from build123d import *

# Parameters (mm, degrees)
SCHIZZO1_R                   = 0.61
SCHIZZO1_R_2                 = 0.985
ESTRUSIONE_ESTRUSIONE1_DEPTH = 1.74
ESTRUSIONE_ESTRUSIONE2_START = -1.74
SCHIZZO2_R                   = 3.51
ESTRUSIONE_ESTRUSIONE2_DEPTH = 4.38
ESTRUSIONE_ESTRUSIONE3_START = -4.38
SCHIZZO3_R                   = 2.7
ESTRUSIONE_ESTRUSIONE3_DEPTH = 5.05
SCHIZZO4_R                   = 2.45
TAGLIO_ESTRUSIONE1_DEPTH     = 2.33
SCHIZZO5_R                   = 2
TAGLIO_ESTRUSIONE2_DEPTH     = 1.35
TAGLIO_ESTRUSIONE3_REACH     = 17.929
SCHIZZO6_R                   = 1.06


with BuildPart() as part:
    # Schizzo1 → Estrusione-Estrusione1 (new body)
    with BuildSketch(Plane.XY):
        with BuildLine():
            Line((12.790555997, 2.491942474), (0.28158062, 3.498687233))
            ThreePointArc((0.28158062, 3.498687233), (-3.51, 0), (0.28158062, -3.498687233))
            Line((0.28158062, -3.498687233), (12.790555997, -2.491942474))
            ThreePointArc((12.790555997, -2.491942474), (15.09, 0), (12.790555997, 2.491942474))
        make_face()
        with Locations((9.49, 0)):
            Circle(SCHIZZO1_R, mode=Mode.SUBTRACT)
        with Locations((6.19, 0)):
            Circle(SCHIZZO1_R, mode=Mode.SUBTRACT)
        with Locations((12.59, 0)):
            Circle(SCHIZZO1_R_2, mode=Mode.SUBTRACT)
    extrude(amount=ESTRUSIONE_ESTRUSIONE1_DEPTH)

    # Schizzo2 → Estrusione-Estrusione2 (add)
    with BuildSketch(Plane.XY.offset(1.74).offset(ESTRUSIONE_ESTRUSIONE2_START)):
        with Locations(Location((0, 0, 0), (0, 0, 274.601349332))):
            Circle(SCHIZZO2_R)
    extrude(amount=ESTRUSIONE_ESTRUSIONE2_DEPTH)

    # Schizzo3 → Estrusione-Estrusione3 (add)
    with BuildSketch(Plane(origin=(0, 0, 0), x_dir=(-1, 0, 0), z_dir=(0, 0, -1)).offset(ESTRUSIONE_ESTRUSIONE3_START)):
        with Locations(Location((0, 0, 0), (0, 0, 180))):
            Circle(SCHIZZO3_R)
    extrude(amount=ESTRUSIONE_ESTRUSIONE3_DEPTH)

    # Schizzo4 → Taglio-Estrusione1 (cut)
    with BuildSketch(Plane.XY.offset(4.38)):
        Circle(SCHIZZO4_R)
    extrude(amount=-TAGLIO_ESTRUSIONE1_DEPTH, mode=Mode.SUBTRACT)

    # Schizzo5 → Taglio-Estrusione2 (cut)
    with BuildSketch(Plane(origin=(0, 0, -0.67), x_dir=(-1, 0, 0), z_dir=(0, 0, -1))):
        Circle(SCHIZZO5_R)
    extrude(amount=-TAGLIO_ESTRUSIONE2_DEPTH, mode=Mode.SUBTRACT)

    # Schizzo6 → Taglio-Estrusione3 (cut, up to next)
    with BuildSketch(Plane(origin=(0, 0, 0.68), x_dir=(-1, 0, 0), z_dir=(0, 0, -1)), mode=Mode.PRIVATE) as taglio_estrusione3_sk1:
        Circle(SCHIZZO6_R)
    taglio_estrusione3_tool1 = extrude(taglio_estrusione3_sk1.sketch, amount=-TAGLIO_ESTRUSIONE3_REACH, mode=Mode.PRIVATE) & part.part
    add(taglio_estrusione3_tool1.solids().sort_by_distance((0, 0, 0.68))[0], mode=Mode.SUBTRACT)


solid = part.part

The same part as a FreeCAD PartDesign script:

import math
import FreeCAD as App
import Part
import Sketcher

V = App.Vector
Q = App.Units.Quantity

doc = App.newDocument("Part")
body = doc.addObject("PartDesign::Body", "Body")

# Sketch on XY plane
sketch1 = doc.addObject("Sketcher::SketchObject", "Sketch")
body.addObject(sketch1)
sketch1.AttachmentSupport = (doc.XY_Plane, [""])
sketch1.MapMode = "FlatFace"
sketch1.addGeometry(Part.LineSegment(V(12.8, 2.5, 0), V(0.3, 3.5, 0)), False)
sketch1.addGeometry(Part.ArcOfCircle(Part.Circle(V(0, 0, 0), V(0, 0, 1), 3.5), math.radians(85), math.radians(275)), False)
sketch1.addGeometry(Part.LineSegment(V(0.3, -3.5, 0), V(12.8, -2.5, 0)), False)
sketch1.addGeometry(Part.ArcOfCircle(Part.Circle(V(12.6, 0, 0), V(0, 0, 1), 2.5), math.radians(-85), math.radians(85)), False)
sketch1.addGeometry(Part.Circle(V(6.2, 0, 0), V(0, 0, 1), 0.6), False)
sketch1.addGeometry(Part.Circle(V(9.5, 0, 0), V(0, 0, 1), 0.6), False)
sketch1.addGeometry(Part.Circle(V(12.6, 0, 0), V(0, 0, 1), 1), False)
sketch1.addConstraint(Sketcher.Constraint("Tangent", 0, 2, 1, 1))
sketch1.addConstraint(Sketcher.Constraint("Tangent", 1, 2, 2, 1))
sketch1.addConstraint(Sketcher.Constraint("Tangent", 2, 2, 3, 1))
sketch1.addConstraint(Sketcher.Constraint("Tangent", 3, 2, 0, 1))
sketch1.addConstraint(Sketcher.Constraint("Coincident", 1, 3, -1, 1))
sketch1.addConstraint(Sketcher.Constraint("Coincident", 6, 3, 3, 3))
sketch1.addConstraint(Sketcher.Constraint("Equal", 4, 5))
sketch1.addConstraint(Sketcher.Constraint("PointOnObject", 3, 3, -1))
sketch1.addConstraint(Sketcher.Constraint("PointOnObject", 4, 3, -1))
sketch1.addConstraint(Sketcher.Constraint("PointOnObject", 5, 3, -1))
sketch1.addConstraint(Sketcher.Constraint("Radius", 3, Q("2.5 mm")))
sketch1.addConstraint(Sketcher.Constraint("Diameter", 4, Q("1.22 mm")))
sketch1.addConstraint(Sketcher.Constraint("Diameter", 6, Q("1.97 mm")))
sketch1.addConstraint(Sketcher.Constraint("Radius", 1, Q("3.51 mm")))
sketch1.addConstraint(Sketcher.Constraint("DistanceX", 4, 3, 3, 3, Q("6.4 mm")))
sketch1.addConstraint(Sketcher.Constraint("DistanceX", 5, 3, 3, 3, Q("3.1 mm")))
sketch1.addConstraint(Sketcher.Constraint("DistanceX", -1, 1, 3, 3, Q("12.59 mm")))
pad1 = doc.addObject("PartDesign::Pad", "Pad")
body.addObject(pad1)
pad1.Profile = sketch1
pad1.Length = 1.74

# Sketch on XY plane
sketch2 = doc.addObject("Sketcher::SketchObject", "Sketch001")
body.addObject(sketch2)
sketch2.AttachmentSupport = (doc.XY_Plane, [""])
sketch2.MapMode = "FlatFace"
sketch2.addGeometry(Part.Circle(V(0, 0, 0), V(0, 0, 1), 3.5), False)
sketch2.addConstraint(Sketcher.Constraint("Coincident", 0, 3, -1, 1))
sketch2.addConstraint(Sketcher.Constraint("Diameter", 0, Q("7.02 mm")))
pad2 = doc.addObject("PartDesign::Pad", "Pad001")
body.addObject(pad2)
pad2.Profile = sketch2
pad2.Length = 4.38

# Sketch on XY plane
sketch3 = doc.addObject("Sketcher::SketchObject", "Sketch002")
body.addObject(sketch3)
sketch3.AttachmentSupport = (doc.XY_Plane, [""])
sketch3.MapMode = "FlatFace"
sketch3.AttachmentOffset = App.Placement(V(0, 0, 4.38), App.Rotation())
sketch3.addGeometry(Part.Circle(V(0, 0, 0), V(0, 0, 1), 2.7), False)
sketch3.addConstraint(Sketcher.Constraint("Coincident", 0, 3, -1, 1))
sketch3.addConstraint(Sketcher.Constraint("Diameter", 0, Q("5.4 mm")))
pad3 = doc.addObject("PartDesign::Pad", "Pad002")
body.addObject(pad3)
pad3.Profile = sketch3
pad3.Length = 5.05
pad3.Reversed = True

# Sketch on XY plane
sketch4 = doc.addObject("Sketcher::SketchObject", "Sketch003")
body.addObject(sketch4)
sketch4.AttachmentSupport = (doc.XY_Plane, [""])
sketch4.MapMode = "FlatFace"
sketch4.AttachmentOffset = App.Placement(V(0, 0, 4.38), App.Rotation())
sketch4.addGeometry(Part.Circle(V(0, 0, 0), V(0, 0, 1), 2.5), False)
sketch4.addConstraint(Sketcher.Constraint("Coincident", 0, 3, -1, 1))
sketch4.addConstraint(Sketcher.Constraint("Diameter", 0, Q("4.9 mm")))
pocket1 = doc.addObject("PartDesign::Pocket", "Pocket")
body.addObject(pocket1)
pocket1.Profile = sketch4
pocket1.Length = 2.33

# Sketch on XY plane
sketch5 = doc.addObject("Sketcher::SketchObject", "Sketch004")
body.addObject(sketch5)
sketch5.AttachmentSupport = (doc.XY_Plane, [""])
sketch5.MapMode = "FlatFace"
sketch5.AttachmentOffset = App.Placement(V(0, 0, -0.67), App.Rotation())
sketch5.addGeometry(Part.Circle(V(0, 0, 0), V(0, 0, 1), 2), False)
sketch5.addConstraint(Sketcher.Constraint("Coincident", 0, 3, -1, 1))
sketch5.addConstraint(Sketcher.Constraint("Diameter", 0, Q("4 mm")))
pocket2 = doc.addObject("PartDesign::Pocket", "Pocket001")
body.addObject(pocket2)
pocket2.Profile = sketch5
pocket2.Length = 1.35
pocket2.Reversed = True

# Sketch on XY plane
sketch6 = doc.addObject("Sketcher::SketchObject", "Sketch005")
body.addObject(sketch6)
sketch6.AttachmentSupport = (doc.XY_Plane, [""])
sketch6.MapMode = "FlatFace"
sketch6.AttachmentOffset = App.Placement(V(0, 0, 0.68), App.Rotation())
sketch6.addGeometry(Part.Circle(V(0, 0, 0), V(0, 0, 1), 1.1), False)
sketch6.addConstraint(Sketcher.Constraint("Coincident", 0, 3, -1, 1))
sketch6.addConstraint(Sketcher.Constraint("Diameter", 0, Q("2.12 mm")))
pocket3 = doc.addObject("PartDesign::Pocket", "Pocket002")
body.addObject(pocket3)
pocket3.Profile = sketch6
pocket3.Type = "UpToFirst"
pocket3.Reversed = True

doc.recompute()
